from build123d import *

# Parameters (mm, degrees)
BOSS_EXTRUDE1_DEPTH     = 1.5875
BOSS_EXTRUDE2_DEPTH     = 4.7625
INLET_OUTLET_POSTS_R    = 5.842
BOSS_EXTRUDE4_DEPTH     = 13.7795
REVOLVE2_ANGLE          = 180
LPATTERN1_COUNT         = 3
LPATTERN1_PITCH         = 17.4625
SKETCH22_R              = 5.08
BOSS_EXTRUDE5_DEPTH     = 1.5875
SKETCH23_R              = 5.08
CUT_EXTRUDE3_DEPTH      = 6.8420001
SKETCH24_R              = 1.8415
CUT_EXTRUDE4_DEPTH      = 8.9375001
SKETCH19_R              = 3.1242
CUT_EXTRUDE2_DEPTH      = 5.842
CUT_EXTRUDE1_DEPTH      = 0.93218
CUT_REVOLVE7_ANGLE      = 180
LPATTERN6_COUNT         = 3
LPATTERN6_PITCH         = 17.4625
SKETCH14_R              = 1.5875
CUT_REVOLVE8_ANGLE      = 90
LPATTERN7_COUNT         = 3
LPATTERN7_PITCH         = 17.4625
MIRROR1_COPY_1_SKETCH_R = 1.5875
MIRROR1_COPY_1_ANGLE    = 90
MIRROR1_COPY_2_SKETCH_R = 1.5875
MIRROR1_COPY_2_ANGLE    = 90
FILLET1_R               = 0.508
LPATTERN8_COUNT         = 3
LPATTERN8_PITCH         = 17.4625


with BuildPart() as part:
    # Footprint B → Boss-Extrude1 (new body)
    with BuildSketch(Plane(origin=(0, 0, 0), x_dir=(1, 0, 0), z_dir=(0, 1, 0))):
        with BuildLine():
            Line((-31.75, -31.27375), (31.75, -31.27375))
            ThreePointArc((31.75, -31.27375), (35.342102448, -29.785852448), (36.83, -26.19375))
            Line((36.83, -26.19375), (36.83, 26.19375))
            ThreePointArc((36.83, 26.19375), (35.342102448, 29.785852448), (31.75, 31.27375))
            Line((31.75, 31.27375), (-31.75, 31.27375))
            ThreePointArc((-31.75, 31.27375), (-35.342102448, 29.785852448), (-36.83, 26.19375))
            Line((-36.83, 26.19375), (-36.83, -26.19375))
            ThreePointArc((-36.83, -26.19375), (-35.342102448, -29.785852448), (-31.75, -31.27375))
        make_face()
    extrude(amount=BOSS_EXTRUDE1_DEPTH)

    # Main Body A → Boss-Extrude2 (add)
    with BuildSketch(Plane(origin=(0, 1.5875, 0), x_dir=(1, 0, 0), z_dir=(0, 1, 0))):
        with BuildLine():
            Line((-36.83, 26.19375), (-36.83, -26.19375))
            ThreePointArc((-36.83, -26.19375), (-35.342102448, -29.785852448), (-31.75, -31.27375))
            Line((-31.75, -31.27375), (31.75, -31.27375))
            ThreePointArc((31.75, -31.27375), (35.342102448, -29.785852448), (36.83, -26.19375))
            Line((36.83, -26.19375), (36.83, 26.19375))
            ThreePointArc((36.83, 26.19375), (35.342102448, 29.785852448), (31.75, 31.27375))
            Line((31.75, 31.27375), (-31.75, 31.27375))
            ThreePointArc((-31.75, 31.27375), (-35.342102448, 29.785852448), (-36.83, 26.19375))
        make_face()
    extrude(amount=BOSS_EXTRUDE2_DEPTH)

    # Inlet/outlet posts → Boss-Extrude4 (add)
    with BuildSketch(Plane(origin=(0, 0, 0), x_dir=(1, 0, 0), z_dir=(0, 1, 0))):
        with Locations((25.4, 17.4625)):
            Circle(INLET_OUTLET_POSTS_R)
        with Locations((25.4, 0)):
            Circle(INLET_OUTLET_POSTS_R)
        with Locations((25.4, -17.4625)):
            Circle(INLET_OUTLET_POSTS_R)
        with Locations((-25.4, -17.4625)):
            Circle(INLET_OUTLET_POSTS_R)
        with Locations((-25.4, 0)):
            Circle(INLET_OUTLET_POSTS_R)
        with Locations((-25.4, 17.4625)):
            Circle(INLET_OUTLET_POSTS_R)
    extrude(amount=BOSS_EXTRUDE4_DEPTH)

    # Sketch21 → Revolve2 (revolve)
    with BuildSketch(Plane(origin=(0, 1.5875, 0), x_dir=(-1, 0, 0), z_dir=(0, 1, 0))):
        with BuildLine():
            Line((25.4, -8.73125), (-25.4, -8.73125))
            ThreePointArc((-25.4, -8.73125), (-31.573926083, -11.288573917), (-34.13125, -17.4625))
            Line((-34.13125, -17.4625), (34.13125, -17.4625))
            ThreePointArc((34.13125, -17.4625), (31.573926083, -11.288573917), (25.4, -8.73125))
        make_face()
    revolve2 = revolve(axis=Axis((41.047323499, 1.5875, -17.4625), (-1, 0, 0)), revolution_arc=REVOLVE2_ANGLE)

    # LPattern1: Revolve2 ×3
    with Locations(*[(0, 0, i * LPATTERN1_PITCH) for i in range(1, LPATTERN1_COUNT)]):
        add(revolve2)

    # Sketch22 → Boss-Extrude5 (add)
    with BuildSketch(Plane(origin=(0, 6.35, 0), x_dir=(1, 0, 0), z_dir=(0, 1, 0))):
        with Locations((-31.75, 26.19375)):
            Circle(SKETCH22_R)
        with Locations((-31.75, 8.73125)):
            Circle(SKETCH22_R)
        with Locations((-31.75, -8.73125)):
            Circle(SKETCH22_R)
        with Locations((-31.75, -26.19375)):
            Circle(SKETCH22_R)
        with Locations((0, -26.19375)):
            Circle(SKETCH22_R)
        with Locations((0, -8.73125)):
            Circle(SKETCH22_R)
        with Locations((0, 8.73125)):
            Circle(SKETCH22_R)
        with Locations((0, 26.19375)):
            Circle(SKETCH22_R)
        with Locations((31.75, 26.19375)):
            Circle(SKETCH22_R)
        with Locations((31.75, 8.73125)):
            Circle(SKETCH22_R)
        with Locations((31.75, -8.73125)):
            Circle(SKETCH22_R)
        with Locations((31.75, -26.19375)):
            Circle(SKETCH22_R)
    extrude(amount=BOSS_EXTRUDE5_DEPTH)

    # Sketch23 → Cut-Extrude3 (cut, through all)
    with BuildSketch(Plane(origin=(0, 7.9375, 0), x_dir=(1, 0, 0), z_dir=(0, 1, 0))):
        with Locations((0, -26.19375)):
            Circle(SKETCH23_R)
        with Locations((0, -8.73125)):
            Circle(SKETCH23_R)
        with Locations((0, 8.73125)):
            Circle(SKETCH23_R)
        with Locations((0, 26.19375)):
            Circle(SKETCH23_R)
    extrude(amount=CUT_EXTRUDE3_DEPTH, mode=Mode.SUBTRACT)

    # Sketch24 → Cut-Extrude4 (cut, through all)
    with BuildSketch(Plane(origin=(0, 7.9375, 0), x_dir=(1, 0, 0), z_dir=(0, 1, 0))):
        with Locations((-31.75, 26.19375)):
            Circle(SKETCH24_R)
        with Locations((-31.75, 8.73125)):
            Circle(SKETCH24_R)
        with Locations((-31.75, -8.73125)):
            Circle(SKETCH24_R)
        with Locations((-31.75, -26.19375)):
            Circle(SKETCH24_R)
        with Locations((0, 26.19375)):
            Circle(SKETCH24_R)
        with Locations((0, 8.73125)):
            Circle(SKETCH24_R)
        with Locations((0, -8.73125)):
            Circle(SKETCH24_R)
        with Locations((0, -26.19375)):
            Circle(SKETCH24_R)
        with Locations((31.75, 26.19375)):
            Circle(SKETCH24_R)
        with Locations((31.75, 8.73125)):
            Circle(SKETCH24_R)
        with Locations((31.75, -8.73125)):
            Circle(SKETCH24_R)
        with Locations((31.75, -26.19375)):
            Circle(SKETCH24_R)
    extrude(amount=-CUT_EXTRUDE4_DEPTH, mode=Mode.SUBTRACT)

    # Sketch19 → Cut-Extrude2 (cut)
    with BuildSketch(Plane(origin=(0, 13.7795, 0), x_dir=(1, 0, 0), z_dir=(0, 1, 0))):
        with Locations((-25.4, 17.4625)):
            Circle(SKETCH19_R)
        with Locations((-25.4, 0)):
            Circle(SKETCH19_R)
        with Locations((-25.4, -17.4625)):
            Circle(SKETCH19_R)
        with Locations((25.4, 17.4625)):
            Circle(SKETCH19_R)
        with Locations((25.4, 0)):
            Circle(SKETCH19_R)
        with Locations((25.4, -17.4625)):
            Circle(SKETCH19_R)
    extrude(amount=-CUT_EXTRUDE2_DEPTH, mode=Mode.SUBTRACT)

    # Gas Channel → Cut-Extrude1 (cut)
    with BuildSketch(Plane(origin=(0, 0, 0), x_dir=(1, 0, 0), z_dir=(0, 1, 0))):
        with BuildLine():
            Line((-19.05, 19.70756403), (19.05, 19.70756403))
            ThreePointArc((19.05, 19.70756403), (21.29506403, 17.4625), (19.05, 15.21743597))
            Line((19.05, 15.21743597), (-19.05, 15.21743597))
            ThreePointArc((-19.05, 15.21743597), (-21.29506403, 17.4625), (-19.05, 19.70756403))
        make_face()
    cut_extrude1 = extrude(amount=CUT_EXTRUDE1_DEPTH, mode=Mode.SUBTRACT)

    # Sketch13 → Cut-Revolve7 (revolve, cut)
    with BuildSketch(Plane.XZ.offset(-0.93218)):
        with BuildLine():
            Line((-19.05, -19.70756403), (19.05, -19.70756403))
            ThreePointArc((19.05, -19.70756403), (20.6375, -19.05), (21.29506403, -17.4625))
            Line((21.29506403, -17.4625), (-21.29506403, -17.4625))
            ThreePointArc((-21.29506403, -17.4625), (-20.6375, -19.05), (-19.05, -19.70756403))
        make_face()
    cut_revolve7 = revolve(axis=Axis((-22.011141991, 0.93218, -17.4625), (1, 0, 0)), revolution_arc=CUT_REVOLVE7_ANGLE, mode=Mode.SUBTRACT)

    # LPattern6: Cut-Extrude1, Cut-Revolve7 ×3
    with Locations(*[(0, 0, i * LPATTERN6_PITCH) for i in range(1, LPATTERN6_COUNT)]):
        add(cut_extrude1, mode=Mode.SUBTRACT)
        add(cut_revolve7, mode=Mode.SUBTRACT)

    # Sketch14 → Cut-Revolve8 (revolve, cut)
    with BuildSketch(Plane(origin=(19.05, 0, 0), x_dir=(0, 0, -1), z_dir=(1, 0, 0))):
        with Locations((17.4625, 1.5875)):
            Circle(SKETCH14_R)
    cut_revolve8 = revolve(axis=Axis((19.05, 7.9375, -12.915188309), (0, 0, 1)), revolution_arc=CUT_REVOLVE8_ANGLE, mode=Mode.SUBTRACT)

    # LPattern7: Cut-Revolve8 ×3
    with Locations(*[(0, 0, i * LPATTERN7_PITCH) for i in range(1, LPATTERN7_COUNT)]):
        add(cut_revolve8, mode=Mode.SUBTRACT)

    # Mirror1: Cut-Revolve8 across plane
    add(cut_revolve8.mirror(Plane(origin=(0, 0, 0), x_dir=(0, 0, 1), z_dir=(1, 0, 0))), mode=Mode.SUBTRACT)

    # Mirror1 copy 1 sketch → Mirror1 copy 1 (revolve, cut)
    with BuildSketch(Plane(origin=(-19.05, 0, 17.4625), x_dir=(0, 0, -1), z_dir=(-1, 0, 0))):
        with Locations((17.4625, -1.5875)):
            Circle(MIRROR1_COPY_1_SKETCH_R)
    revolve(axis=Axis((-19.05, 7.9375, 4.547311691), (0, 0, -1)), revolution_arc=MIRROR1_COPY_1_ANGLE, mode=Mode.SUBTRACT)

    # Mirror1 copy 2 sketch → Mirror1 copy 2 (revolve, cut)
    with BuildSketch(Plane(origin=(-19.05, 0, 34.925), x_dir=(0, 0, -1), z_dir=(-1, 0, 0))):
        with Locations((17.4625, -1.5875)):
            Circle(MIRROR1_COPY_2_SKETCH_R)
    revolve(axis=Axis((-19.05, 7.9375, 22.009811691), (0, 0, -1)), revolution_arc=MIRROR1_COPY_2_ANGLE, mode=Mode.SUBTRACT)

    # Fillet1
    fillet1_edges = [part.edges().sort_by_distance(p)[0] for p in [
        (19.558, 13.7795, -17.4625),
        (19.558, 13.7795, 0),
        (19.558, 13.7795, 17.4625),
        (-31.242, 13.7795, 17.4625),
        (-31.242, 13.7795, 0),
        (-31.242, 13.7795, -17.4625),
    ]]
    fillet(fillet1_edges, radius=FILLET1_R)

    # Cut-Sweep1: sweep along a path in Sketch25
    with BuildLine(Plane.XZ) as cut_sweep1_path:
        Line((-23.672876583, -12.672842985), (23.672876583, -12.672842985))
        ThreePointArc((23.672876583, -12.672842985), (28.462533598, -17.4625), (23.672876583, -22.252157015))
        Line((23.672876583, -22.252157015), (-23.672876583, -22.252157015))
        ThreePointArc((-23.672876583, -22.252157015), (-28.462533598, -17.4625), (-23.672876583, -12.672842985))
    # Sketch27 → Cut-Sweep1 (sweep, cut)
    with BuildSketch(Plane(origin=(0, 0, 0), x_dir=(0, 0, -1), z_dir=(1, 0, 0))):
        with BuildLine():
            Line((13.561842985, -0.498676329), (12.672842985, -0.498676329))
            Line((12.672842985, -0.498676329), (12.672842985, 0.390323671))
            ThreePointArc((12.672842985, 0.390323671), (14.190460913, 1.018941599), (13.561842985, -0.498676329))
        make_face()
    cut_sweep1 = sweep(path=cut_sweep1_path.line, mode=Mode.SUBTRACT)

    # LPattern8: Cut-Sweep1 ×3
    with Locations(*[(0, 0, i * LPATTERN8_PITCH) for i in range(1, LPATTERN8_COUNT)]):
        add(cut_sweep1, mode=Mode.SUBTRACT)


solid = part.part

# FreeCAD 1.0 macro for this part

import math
import FreeCAD as App
import Part
import Sketcher

V = App.Vector
Q = App.Units.Quantity


def edges_at(feature, points):
    """Names of the edges that pass closest to the given points."""
    edges = feature.Shape.Edges
    near = lambda p: min(range(len(edges)), key=lambda i: edges[i].distToShape(Part.Vertex(*p))[0])
    return sorted({f"Edge{near(p) + 1}" for p in points})

doc = App.newDocument("Part")
body = doc.addObject("PartDesign::Body", "Body")

# Sketch on XZ plane
sketch1 = body.newObject("Sketcher::SketchObject", "Sketch")
sketch1.AttachmentSupport = (doc.getObject("XZ_Plane"), [""])
sketch1.MapMode = "FlatFace"
sketch1.addGeometry(Part.LineSegment(V(-32, 31, 0), V(32, 31, 0)), False)
sketch1.addGeometry(Part.ArcOfCircle(Part.Circle(V(32, 26, 0), V(0, 0, 1), 5), math.radians(0), math.radians(90)), False)
sketch1.addGeometry(Part.LineSegment(V(37, 26, 0), V(37, -26, 0)), False)
sketch1.addGeometry(Part.ArcOfCircle(Part.Circle(V(32, -26, 0), V(0, 0, 1), 5), math.radians(-90), math.radians(0)), False)
sketch1.addGeometry(Part.LineSegment(V(32, -31, 0), V(-32, -31, 0)), False)
sketch1.addGeometry(Part.ArcOfCircle(Part.Circle(V(-32, -26, 0), V(0, 0, 1), 5), math.radians(-180), math.radians(-90)), False)
sketch1.addGeometry(Part.LineSegment(V(-37, -26, 0), V(-37, 26, 0)), False)
sketch1.addGeometry(Part.ArcOfCircle(Part.Circle(V(-32, 26, 0), V(0, 0, 1), 5), math.radians(90), math.radians(180)), False)
sketch1.addConstraint(Sketcher.Constraint("Tangent", 0, 2, 1, 2))
sketch1.addConstraint(Sketcher.Constraint("Tangent", 1, 1, 2, 1))
sketch1.addConstraint(Sketcher.Constraint("Tangent", 2, 2, 3, 2))
sketch1.addConstraint(Sketcher.Constraint("Tangent", 3, 1, 4, 1))
sketch1.addConstraint(Sketcher.Constraint("Tangent", 4, 2, 5, 2))
sketch1.addConstraint(Sketcher.Constraint("Tangent", 5, 1, 6, 1))
sketch1.addConstraint(Sketcher.Constraint("Tangent", 6, 2, 7, 2))
sketch1.addConstraint(Sketcher.Constraint("Tangent", 7, 1, 0, 1))
sketch1.addConstraint(Sketcher.Constraint("Horizontal", 0))
sketch1.addConstraint(Sketcher.Constraint("Vertical", 2))
sketch1.addConstraint(Sketcher.Constraint("Horizontal", 4))
sketch1.addConstraint(Sketcher.Constraint("Vertical", 6))
sketch1.addConstraint(Sketcher.Constraint("Equal", 1, 3))
sketch1.addConstraint(Sketcher.Constraint("Equal", 3, 5))
sketch1.addConstraint(Sketcher.Constraint("Equal", 5, 7))
sketch1.addConstraint(Sketcher.Constraint("Symmetric", 1, 3, 5, 3, -1, 1))
sketch1.addConstraint(Sketcher.Constraint("Radius", 1, Q("0.2 in")))
sketch1.addConstraint(Sketcher.Constraint("DistanceX", 0, 1, 0, 2, Q("2.5 in")))
sketch1.addConstraint(Sketcher.Constraint("DistanceY", 2, 2, 2, 1, Q("2.0625 in")))
pad1 = body.newObject("PartDesign::Pad", "Pad")
pad1.Profile = sketch1
pad1.Length = Q("0.0625 in")
pad1.Reversed = True

# Sketch on XZ plane
sketch2 = body.newObject("Sketcher::SketchObject", "Sketch001")
sketch2.AttachmentSupport = (doc.getObject("XZ_Plane"), [""])
sketch2.MapMode = "FlatFace"
sketch2.AttachmentOffset = App.Placement(V(0, 0, -0.0625 * 25.4), App.Rotation())
sketch2.addGeometry(Part.LineSegment(V(-37, -26, 0), V(-37, 26, 0)), False)
sketch2.addGeometry(Part.ArcOfCircle(Part.Circle(V(-32, 26, 0), V(0, 0, 1), 5), math.radians(90), math.radians(180)), False)
sketch2.addGeometry(Part.LineSegment(V(-32, 31, 0), V(32, 31, 0)), False)
sketch2.addGeometry(Part.ArcOfCircle(Part.Circle(V(32, 26, 0), V(0, 0, 1), 5), math.radians(0), math.radians(90)), False)
sketch2.addGeometry(Part.LineSegment(V(37, 26, 0), V(37, -26, 0)), False)
sketch2.addGeometry(Part.ArcOfCircle(Part.Circle(V(32, -26, 0), V(0, 0, 1), 5), math.radians(-90), math.radians(0)), False)
sketch2.addGeometry(Part.LineSegment(V(32, -31, 0), V(-32, -31, 0)), False)
sketch2.addGeometry(Part.ArcOfCircle(Part.Circle(V(-32, -26, 0), V(0, 0, 1), 5), math.radians(-180), math.radians(-90)), False)
sketch2.addConstraint(Sketcher.Constraint("Tangent", 0, 2, 1, 2))
sketch2.addConstraint(Sketcher.Constraint("Tangent", 1, 1, 2, 1))
sketch2.addConstraint(Sketcher.Constraint("Tangent", 2, 2, 3, 2))
sketch2.addConstraint(Sketcher.Constraint("Tangent", 3, 1, 4, 1))
sketch2.addConstraint(Sketcher.Constraint("Tangent", 4, 2, 5, 2))
sketch2.addConstraint(Sketcher.Constraint("Tangent", 5, 1, 6, 1))
sketch2.addConstraint(Sketcher.Constraint("Tangent", 6, 2, 7, 2))
sketch2.addConstraint(Sketcher.Constraint("Tangent", 7, 1, 0, 1))
sketch2.addConstraint(Sketcher.Constraint("Vertical", 0))
sketch2.addConstraint(Sketcher.Constraint("Horizontal", 2))
sketch2.addConstraint(Sketcher.Constraint("Vertical", 4))
sketch2.addConstraint(Sketcher.Constraint("Horizontal", 6))
sketch2.addConstraint(Sketcher.Constraint("Equal", 1, 3))
sketch2.addConstraint(Sketcher.Constraint("Equal", 3, 5))
sketch2.addConstraint(Sketcher.Constraint("Equal", 5, 7))
sketch2.addConstraint(Sketcher.Constraint("Symmetric", 1, 3, 5, 3, -1, 1))
sketch2.addConstraint(Sketcher.Constraint("Radius", 1, Q("0.2 in")))
sketch2.addConstraint(Sketcher.Constraint("DistanceX", 2, 1, 2, 2, Q("2.5 in")))
sketch2.addConstraint(Sketcher.Constraint("DistanceY", 0, 1, 0, 2, Q("2.0625 in")))
pad2 = body.newObject("PartDesign::Pad", "Pad001")
pad2.Profile = sketch2
pad2.Length = Q("0.1875 in")
pad2.Reversed = True

# Sketch on XZ plane
sketch3 = body.newObject("Sketcher::SketchObject", "Sketch002")
sketch3.AttachmentSupport = (doc.getObject("XZ_Plane"), [""])
sketch3.MapMode = "FlatFace"
sketch3.addGeometry(Part.Circle(V(25, -17, 0), V(0, 0, 1), 6), False)
sketch3.addGeometry(Part.Circle(V(25, 0, 0), V(0, 0, 1), 6), False)
sketch3.addGeometry(Part.Circle(V(25, 17, 0), V(0, 0, 1), 6), False)
sketch3.addGeometry(Part.Circle(V(-25, 17, 0), V(0, 0, 1), 6), False)
sketch3.addGeometry(Part.Circle(V(-25, 0, 0), V(0, 0, 1), 6), False)
sketch3.addGeometry(Part.Circle(V(-25, -17, 0), V(0, 0, 1), 6), False)
sketch3.addConstraint(Sketcher.Constraint("Equal", 0, 1))
sketch3.addConstraint(Sketcher.Constraint("Equal", 1, 2))
sketch3.addConstraint(Sketcher.Constraint("Equal", 2, 3))
sketch3.addConstraint(Sketcher.Constraint("Equal", 3, 4))
sketch3.addConstraint(Sketcher.Constraint("Equal", 4, 5))
sketch3.addConstraint(Sketcher.Constraint("Symmetric", 0, 3, 3, 3, -1, 1))
sketch3.addConstraint(Sketcher.Constraint("Symmetric", 1, 3, 4, 3, -1, 1))
sketch3.addConstraint(Sketcher.Constraint("Symmetric", 2, 3, 5, 3, -1, 1))
sketch3.addConstraint(Sketcher.Constraint("Symmetric", 2, 3, 3, 3, -2))
sketch3.addConstraint(Sketcher.Constraint("PointOnObject", 1, 3, -1))
sketch3.addConstraint(Sketcher.Constraint("Vertical", 0, 3, 1, 3))
sketch3.addConstraint(Sketcher.Constraint("Diameter", 0, Q("0.46 in")))
sketch3.addConstraint(Sketcher.Constraint("DistanceX", -1, 1, 0, 3, Q("1 in")))
sketch3.addConstraint(Sketcher.Constraint("DistanceY", 0, 3, -1, 1, Q("0.6875 in")))
pad3 = body.newObject("PartDesign::Pad", "Pad002")
pad3.Profile = sketch3
pad3.Length = Q("0.5425 in")
pad3.Reversed = True

# Sketch on XZ plane
sketch4 = body.newObject("Sketcher::SketchObject", "Sketch003")
sketch4.AttachmentSupport = (doc.getObject("XZ_Plane"), [""])
sketch4.MapMode = "FlatFace"
sketch4.AttachmentOffset = App.Placement(V(0, 0, -0.0625 * 25.4), App.Rotation())
sketch4.addGeometry(Part.LineSegment(V(-25, -9, 0), V(25, -9, 0)), False)
sketch4.addGeometry(Part.ArcOfCircle(Part.Circle(V(25, -17, 0), V(0, 0, 1), 9), math.radians(0), math.radians(90)), False)
sketch4.addGeometry(Part.LineSegment(V(34, -17, 0), V(-34, -17, 0)), False)
sketch4.addGeometry(Part.ArcOfCircle(Part.Circle(V(-25, -17, 0), V(0, 0, 1), 9), math.radians(90), math.radians(180)), False)
sketch4.addGeometry(Part.LineSegment(V(34, -17, 0), V(-34, -17, 0)), True)  # axis
sketch4.addConstraint(Sketcher.Constraint("Tangent", 0, 2, 1, 2))
sketch4.addConstraint(Sketcher.Constraint("Coincident", 1, 1, 2, 1))
sketch4.addConstraint(Sketcher.Constraint("Coincident", 2, 2, 3, 2))
sketch4.addConstraint(Sketcher.Constraint("Tangent", 3, 1, 0, 1))
sketch4.addConstraint(Sketcher.Constraint("Horizontal", 0))
sketch4.addConstraint(Sketcher.Constraint("Horizontal", 2))
sketch4.addConstraint(Sketcher.Constraint("Horizontal", 4))
sketch4.addConstraint(Sketcher.Constraint("Coincident", 4, 1, 1, 1))
sketch4.addConstraint(Sketcher.Constraint("Equal", 1, 3))
sketch4.addConstraint(Sketcher.Constraint("Horizontal", 3, 3, 1, 1))
sketch4.addConstraint(Sketcher.Constraint("Equal", 2, 4))
sketch4.addConstraint(Sketcher.Constraint("DistanceX", 0, 1, 0, 2, Q("2 in")))
sketch4.addConstraint(Sketcher.Constraint("DistanceX", -1, 1, 1, 3, Q("1 in")))
sketch4.addConstraint(Sketcher.Constraint("Radius", 1, Q("0.34375 in")))
sketch4.addConstraint(Sketcher.Constraint("DistanceY", 1, 3, -1, 1, Q("0.6875 in")))
revolution = body.newObject("PartDesign::Revolution", "Revolution")
revolution.Profile = sketch4
revolution.ReferenceAxis = (sketch4, ["Axis0"])
revolution.Angle = 180
doc.recompute()

linearpattern = body.newObject("PartDesign::LinearPattern", "LinearPattern")
linearpattern.Originals = [revolution]
linearpattern.Direction = (doc.getObject("Z_Axis"), [""])
linearpattern.Mode = "offset"
linearpattern.Offset = Q("0.6875 in")
linearpattern.Occurrences = 3
body.Tip = linearpattern

# Sketch on XZ plane
sketch5 = body.newObject("Sketcher::SketchObject", "Sketch004")
sketch5.AttachmentSupport = (doc.getObject("XZ_Plane"), [""])
sketch5.MapMode = "FlatFace"
sketch5.AttachmentOffset = App.Placement(V(0, 0, -0.25 * 25.4), App.Rotation())
sketch5.addGeometry(Part.Circle(V(-32, -26, 0), V(0, 0, 1), 5), False)
sketch5.addGeometry(Part.Circle(V(-32, -9, 0), V(0, 0, 1), 5), False)
sketch5.addGeometry(Part.Circle(V(-32, 9, 0), V(0, 0, 1), 5), False)
sketch5.addGeometry(Part.Circle(V(-32, 26, 0), V(0, 0, 1), 5), False)
sketch5.addGeometry(Part.Circle(V(0, 26, 0), V(0, 0, 1), 5), False)
sketch5.addGeometry(Part.Circle(V(0, 9, 0), V(0, 0, 1), 5), False)
sketch5.addGeometry(Part.Circle(V(0, -9, 0), V(0, 0, 1), 5), False)
sketch5.addGeometry(Part.Circle(V(0, -26, 0), V(0, 0, 1), 5), False)
sketch5.addGeometry(Part.Circle(V(32, -26, 0), V(0, 0, 1), 5), False)
sketch5.addGeometry(Part.Circle(V(32, -9, 0), V(0, 0, 1), 5), False)
sketch5.addGeometry(Part.Circle(V(32, 9, 0), V(0, 0, 1), 5), False)
sketch5.addGeometry(Part.Circle(V(32, 26, 0), V(0, 0, 1), 5), False)
sketch5.addConstraint(Sketcher.Constraint("Equal", 0, 1))
sketch5.addConstraint(Sketcher.Constraint("Equal", 1, 2))
sketch5.addConstraint(Sketcher.Constraint("Equal", 2, 3))
sketch5.addConstraint(Sketcher.Constraint("Equal", 3, 4))
sketch5.addConstraint(Sketcher.Constraint("Equal", 4, 5))
sketch5.addConstraint(Sketcher.Constraint("Equal", 5, 6))
sketch5.addConstraint(Sketcher.Constraint("Equal", 6, 7))
sketch5.addConstraint(Sketcher.Constraint("Equal", 7, 8))
sketch5.addConstraint(Sketcher.Constraint("Equal", 8, 9))
sketch5.addConstraint(Sketcher.Constraint("Equal", 9, 10))
sketch5.addConstraint(Sketcher.Constraint("Equal", 10, 11))
sketch5.addConstraint(Sketcher.Constraint("Symmetric", 5, 3, 6, 3, -1, 1))
sketch5.addConstraint(Sketcher.Constraint("Symmetric", 4, 3, 7, 3, -1, 1))
sketch5.addConstraint(Sketcher.Constraint("Symmetric", 3, 3, 8, 3, -1, 1))
sketch5.addConstraint(Sketcher.Constraint("Symmetric", 2, 3, 9, 3, -1, 1))
sketch5.addConstraint(Sketcher.Constraint("Symmetric", 1, 3, 10, 3, -1, 1))
sketch5.addConstraint(Sketcher.Constraint("Symmetric", 0, 3, 11, 3, -1, 1))
sketch5.addConstraint(Sketcher.Constraint("Symmetric", 0, 3, 8, 3, -2))
sketch5.addConstraint(Sketcher.Constraint("Symmetric", 1, 3, 9, 3, -2))
sketch5.addConstraint(Sketcher.Constraint("PointOnObject", 4, 3, -2))
sketch5.addConstraint(Sketcher.Constraint("PointOnObject", 5, 3, -2))
sketch5.addConstraint(Sketcher.Constraint("Horizontal", 3, 3, 4, 3))
sketch5.addConstraint(Sketcher.Constraint("Horizontal", 2, 3, 5, 3))
sketch5.addConstraint(Sketcher.Constraint("Vertical", 0, 3, 1, 3))
sketch5.addConstraint(Sketcher.Constraint("Diameter", 0, Q("0.4 in")))
sketch5.addConstraint(Sketcher.Constraint("DistanceX", 0, 3, 8, 3, Q("2.5 in")))
sketch5.addConstraint(Sketcher.Constraint("DistanceY", 0, 3, -1, 1, Q("1.03125 in")))
sketch5.addConstraint(Sketcher.Constraint("DistanceY", 1, 3, -1, 1, Q("0.34375 in")))
pad4 = body.newObject("PartDesign::Pad", "Pad003")
pad4.Profile = sketch5
pad4.Length = Q("0.0625 in")
pad4.Reversed = True

# Sketch on XZ plane
sketch6 = body.newObject("Sketcher::SketchObject", "Sketch005")
sketch6.AttachmentSupport = (doc.getObject("XZ_Plane"), [""])
sketch6.MapMode = "FlatFace"
sketch6.AttachmentOffset = App.Placement(V(0, 0, -0.3125 * 25.4), App.Rotation())
sketch6.addGeometry(Part.Circle(V(0, 26, 0), V(0, 0, 1), 5), False)
sketch6.addGeometry(Part.Circle(V(0, 9, 0), V(0, 0, 1), 5), False)
sketch6.addGeometry(Part.Circle(V(0, -9, 0), V(0, 0, 1), 5), False)
sketch6.addGeometry(Part.Circle(V(0, -26, 0), V(0, 0, 1), 5), False)
sketch6.addConstraint(Sketcher.Constraint("Equal", 0, 1))
sketch6.addConstraint(Sketcher.Constraint("Equal", 1, 2))
sketch6.addConstraint(Sketcher.Constraint("Equal", 2, 3))
sketch6.addConstraint(Sketcher.Constraint("Symmetric", 1, 3, 2, 3, -1, 1))
sketch6.addConstraint(Sketcher.Constraint("Symmetric", 0, 3, 3, 3, -1, 1))
sketch6.addConstraint(Sketcher.Constraint("PointOnObject", 0, 3, -2))
sketch6.addConstraint(Sketcher.Constraint("PointOnObject", 1, 3, -2))
sketch6.addConstraint(Sketcher.Constraint("Diameter", 0, Q("0.4 in")))
sketch6.addConstraint(Sketcher.Constraint("DistanceY", -1, 1, 0, 3, Q("1.03125 in")))
sketch6.addConstraint(Sketcher.Constraint("DistanceY", -1, 1, 1, 3, Q("0.34375 in")))
pocket1 = body.newObject("PartDesign::Pocket", "Pocket")
pocket1.Profile = sketch6
pocket1.Type = "ThroughAll"

# Sketch on XZ plane
sketch7 = body.newObject("Sketcher::SketchObject", "Sketch006")
sketch7.AttachmentSupport = (doc.getObject("XZ_Plane"), [""])
sketch7.MapMode = "FlatFace"
sketch7.AttachmentOffset = App.Placement(V(0, 0, -0.3125 * 25.4), App.Rotation())
sketch7.addGeometry(Part.Circle(V(-31.8, -26.2, 0), V(0, 0, 1), 1.8), False)
sketch7.addGeometry(Part.Circle(V(-31.8, -8.7, 0), V(0, 0, 1), 1.8), False)
sketch7.addGeometry(Part.Circle(V(-31.8, 8.7, 0), V(0, 0, 1), 1.8), False)
sketch7.addGeometry(Part.Circle(V(-31.8, 26.2, 0), V(0, 0, 1), 1.8), False)
sketch7.addGeometry(Part.Circle(V(0, -26.2, 0), V(0, 0, 1), 1.8), False)
sketch7.addGeometry(Part.Circle(V(0, -8.7, 0), V(0, 0, 1), 1.8), False)
sketch7.addGeometry(Part.Circle(V(0, 8.7, 0), V(0, 0, 1), 1.8), False)
sketch7.addGeometry(Part.Circle(V(0, 26.2, 0), V(0, 0, 1), 1.8), False)
sketch7.addGeometry(Part.Circle(V(31.8, -26.2, 0), V(0, 0, 1), 1.8), False)
sketch7.addGeometry(Part.Circle(V(31.8, -8.7, 0), V(0, 0, 1), 1.8), False)
sketch7.addGeometry(Part.Circle(V(31.8, 8.7, 0), V(0, 0, 1), 1.8), False)
sketch7.addGeometry(Part.Circle(V(31.8, 26.2, 0), V(0, 0, 1), 1.8), False)
sketch7.addConstraint(Sketcher.Constraint("Equal", 0, 1))
sketch7.addConstraint(Sketcher.Constraint("Equal", 1, 2))
sketch7.addConstraint(Sketcher.Constraint("Equal", 2, 3))
sketch7.addConstraint(Sketcher.Constraint("Equal", 3, 4))
sketch7.addConstraint(Sketcher.Constraint("Equal", 4, 5))
sketch7.addConstraint(Sketcher.Constraint("Equal", 5, 6))
sketch7.addConstraint(Sketcher.Constraint("Equal", 6, 7))
sketch7.addConstraint(Sketcher.Constraint("Equal", 7, 8))
sketch7.addConstraint(Sketcher.Constraint("Equal", 8, 9))
sketch7.addConstraint(Sketcher.Constraint("Equal", 9, 10))
sketch7.addConstraint(Sketcher.Constraint("Equal", 10, 11))
sketch7.addConstraint(Sketcher.Constraint("Symmetric", 5, 3, 6, 3, -1, 1))
sketch7.addConstraint(Sketcher.Constraint("Symmetric", 4, 3, 7, 3, -1, 1))
sketch7.addConstraint(Sketcher.Constraint("Symmetric", 3, 3, 8, 3, -1, 1))
sketch7.addConstraint(Sketcher.Constraint("Symmetric", 2, 3, 9, 3, -1, 1))
sketch7.addConstraint(Sketcher.Constraint("Symmetric", 1, 3, 10, 3, -1, 1))
sketch7.addConstraint(Sketcher.Constraint("Symmetric", 0, 3, 11, 3, -1, 1))
sketch7.addConstraint(Sketcher.Constraint("Symmetric", 0, 3, 8, 3, -2))
sketch7.addConstraint(Sketcher.Constraint("Symmetric", 1, 3, 9, 3, -2))
sketch7.addConstraint(Sketcher.Constraint("PointOnObject", 4, 3, -2))
sketch7.addConstraint(Sketcher.Constraint("PointOnObject", 5, 3, -2))
sketch7.addConstraint(Sketcher.Constraint("Horizontal", 0, 3, 4, 3))
sketch7.addConstraint(Sketcher.Constraint("Horizontal", 1, 3, 5, 3))
sketch7.addConstraint(Sketcher.Constraint("Vertical", 0, 3, 1, 3))
sketch7.addConstraint(Sketcher.Constraint("Diameter", 0, Q("0.145 in")))
sketch7.addConstraint(Sketcher.Constraint("DistanceX", 0, 3, 8, 3, Q("2.5 in")))
sketch7.addConstraint(Sketcher.Constraint("DistanceY", 0, 3, -1, 1, Q("1.03125 in")))
sketch7.addConstraint(Sketcher.Constraint("DistanceY", 1, 3, -1, 1, Q("0.34375 in")))
pocket2 = body.newObject("PartDesign::Pocket", "Pocket001")
pocket2.Profile = sketch7
pocket2.Type = "ThroughAll"
pocket2.Reversed = True

# Sketch on XZ plane
sketch8 = body.newObject("Sketcher::SketchObject", "Sketch007")
sketch8.AttachmentSupport = (doc.getObject("XZ_Plane"), [""])
sketch8.MapMode = "FlatFace"
sketch8.AttachmentOffset = App.Placement(V(0, 0, -0.5425 * 25.4), App.Rotation())
sketch8.addGeometry(Part.Circle(V(-25.4, -17.5, 0), V(0, 0, 1), 3.1), False)
sketch8.addGeometry(Part.Circle(V(-25.4, 0, 0), V(0, 0, 1), 3.1), False)
sketch8.addGeometry(Part.Circle(V(-25.4, 17.5, 0), V(0, 0, 1), 3.1), False)
sketch8.addGeometry(Part.Circle(V(25.4, -17.5, 0), V(0, 0, 1), 3.1), False)
sketch8.addGeometry(Part.Circle(V(25.4, 0, 0), V(0, 0, 1), 3.1), False)
sketch8.addGeometry(Part.Circle(V(25.4, 17.5, 0), V(0, 0, 1), 3.1), False)
sketch8.addConstraint(Sketcher.Constraint("Equal", 0, 1))
sketch8.addConstraint(Sketcher.Constraint("Equal", 1, 2))
sketch8.addConstraint(Sketcher.Constraint("Equal", 2, 3))
sketch8.addConstraint(Sketcher.Constraint("Equal", 3, 4))
sketch8.addConstraint(Sketcher.Constraint("Equal", 4, 5))
sketch8.addConstraint(Sketcher.Constraint("Symmetric", 2, 3, 3, 3, -1, 1))
sketch8.addConstraint(Sketcher.Constraint("Symmetric", 1, 3, 4, 3, -1, 1))
sketch8.addConstraint(Sketcher.Constraint("Symmetric", 0, 3, 5, 3, -1, 1))
sketch8.addConstraint(Sketcher.Constraint("Symmetric", 0, 3, 3, 3, -2))
sketch8.addConstraint(Sketcher.Constraint("PointOnObject", 1, 3, -1))
sketch8.addConstraint(Sketcher.Constraint("Vertical", 0, 3, 1, 3))
sketch8.addConstraint(Sketcher.Constraint("Diameter", 0, Q("0.246 in")))
sketch8.addConstraint(Sketcher.Constraint("DistanceX", 0, 3, -1, 1, Q("1 in")))
sketch8.addConstraint(Sketcher.Constraint("DistanceY", 0, 3, -1, 1, Q("0.6875 in")))
pocket3 = body.newObject("PartDesign::Pocket", "Pocket002")
pocket3.Profile = sketch8
pocket3.Length = Q("0.23 in")
pocket3.Reversed = True

# Sketch on XZ plane
sketch9 = body.newObject("Sketcher::SketchObject", "Sketch008")
sketch9.AttachmentSupport = (doc.getObject("XZ_Plane"), [""])
sketch9.MapMode = "FlatFace"
sketch9.addGeometry(Part.LineSegment(V(19.1, -19.7, 0), V(-19.1, -19.7, 0)), False)
sketch9.addGeometry(Part.ArcOfCircle(Part.Circle(V(-19.1, -17.5, 0), V(0, 0, 1), 2.2), math.radians(90), math.radians(270)), False)
sketch9.addGeometry(Part.LineSegment(V(-19.1, -15.2, 0), V(19.1, -15.2, 0)), False)
sketch9.addGeometry(Part.ArcOfCircle(Part.Circle(V(19.1, -17.5, 0), V(0, 0, 1), 2.2), math.radians(-90), math.radians(90)), False)
sketch9.addConstraint(Sketcher.Constraint("Tangent", 0, 2, 1, 2))
sketch9.addConstraint(Sketcher.Constraint("Tangent", 1, 1, 2, 1))
sketch9.addConstraint(Sketcher.Constraint("Tangent", 2, 2, 3, 2))
sketch9.addConstraint(Sketcher.Constraint("Tangent", 3, 1, 0, 1))
sketch9.addConstraint(Sketcher.Constraint("Horizontal", 0))
sketch9.addConstraint(Sketcher.Constraint("Horizontal", 2))
sketch9.addConstraint(Sketcher.Constraint("DistanceX", 0, 2, 0, 1, Q("1.5 in")))
sketch9.addConstraint(Sketcher.Constraint("DistanceX", 1, 3, -1, 1, Q("0.75 in")))
sketch9.addConstraint(Sketcher.Constraint("DistanceY", 1, 3, -1, 1, Q("0.6875 in")))
sketch9.addConstraint(Sketcher.Constraint("Radius", 1, 2.245064))
pocket4 = body.newObject("PartDesign::Pocket", "Pocket003")
pocket4.Profile = sketch9
pocket4.Length = Q("0.0367 in")

# Sketch on XZ plane
sketch10 = body.newObject("Sketcher::SketchObject", "Sketch009")
sketch10.AttachmentSupport = (doc.getObject("XZ_Plane"), [""])
sketch10.MapMode = "FlatFace"
sketch10.AttachmentOffset = App.Placement(V(0, 0, -0.0367 * 25.4), App.Rotation())
sketch10.addGeometry(Part.LineSegment(V(-19.1, -19.7, 0), V(19.1, -19.7, 0)), False)
sketch10.addGeometry(Part.ArcOfCircle(Part.Circle(V(19.1, -17.5, 0), V(0, 0, 1), 2.2), math.radians(-90), math.radians(0)), False)
sketch10.addGeometry(Part.LineSegment(V(21.3, -17.5, 0), V(-21.3, -17.5, 0)), False)
sketch10.addGeometry(Part.ArcOfCircle(Part.Circle(V(-19.1, -17.5, 0), V(0, 0, 1), 2.2), math.radians(180), math.radians(270)), False)
sketch10.addGeometry(Part.LineSegment(V(-21.3, -17.5, 0), V(21.3, -17.5, 0)), True)  # axis
sketch10.addConstraint(Sketcher.Constraint("Tangent", 0, 2, 1, 1))
sketch10.addConstraint(Sketcher.Constraint("Coincident", 1, 2, 2, 1))
sketch10.addConstraint(Sketcher.Constraint("Coincident", 2, 2, 3, 1))
sketch10.addConstraint(Sketcher.Constraint("Tangent", 3, 2, 0, 1))
sketch10.addConstraint(Sketcher.Constraint("Horizontal", 0))
sketch10.addConstraint(Sketcher.Constraint("Horizontal", 2))
sketch10.addConstraint(Sketcher.Constraint("Horizontal", 4))
sketch10.addConstraint(Sketcher.Constraint("Coincident", 4, 1, 2, 2))
sketch10.addConstraint(Sketcher.Constraint("Equal", 1, 3))
sketch10.addConstraint(Sketcher.Constraint("Horizontal", 3, 3, 1, 2))
sketch10.addConstraint(Sketcher.Constraint("Equal", 2, 4))
sketch10.addConstraint(Sketcher.Constraint("DistanceX", 0, 1, 0, 2, Q("1.5 in")))
sketch10.addConstraint(Sketcher.Constraint("DistanceX", -1, 1, 1, 3, Q("0.75 in")))
sketch10.addConstraint(Sketcher.Constraint("DistanceY", 1, 3, -1, 1, Q("0.6875 in")))
sketch10.addConstraint(Sketcher.Constraint("Radius", 1, 2.245064))
groove = body.newObject("PartDesign::Groove", "Groove")
groove.Profile = sketch10
groove.ReferenceAxis = (sketch10, ["Axis0"])
groove.Angle = 180
doc.recompute()

linearpattern2 = body.newObject("PartDesign::LinearPattern", "LinearPattern001")
linearpattern2.Originals = [pocket4, groove]
linearpattern2.Direction = (doc.getObject("Z_Axis"), [""])
linearpattern2.Mode = "offset"
linearpattern2.Offset = Q("0.6875 in")
linearpattern2.Occurrences = 3
body.Tip = linearpattern2

# Sketch on YZ plane
sketch11 = body.newObject("Sketcher::SketchObject", "Sketch010")
sketch11.AttachmentSupport = (doc.getObject("YZ_Plane"), [""])
sketch11.MapMode = "FlatFace"
sketch11.AttachmentOffset = App.Placement(V(0, 0, 0.75 * 25.4), App.Rotation())
sketch11.addGeometry(Part.Circle(V(1.6, -17.5, 0), V(0, 0, 1), 1.6), False)
sketch11.addGeometry(Part.LineSegment(V(7.9, -17.5, 0), V(7.9, -7.5, 0)), True)  # axis
sketch11.addConstraint(Sketcher.Constraint("Vertical", 1))
sketch11.addConstraint(Sketcher.Constraint("Horizontal", 0, 3, 1, 1))
sketch11.addConstraint(Sketcher.Constraint("Diameter", 0, Q("0.125 in")))
sketch11.addConstraint(Sketcher.Constraint("DistanceX", 0, 3, 1, 1, Q("0.25 in")))
sketch11.addConstraint(Sketcher.Constraint("DistanceX", -1, 1, 0, 3, Q("0.0625 in")))
sketch11.addConstraint(Sketcher.Constraint("DistanceY", 0, 3, -1, 1, Q("0.6875 in")))
sketch11.addConstraint(Sketcher.Constraint("DistanceY", 1, 1, 1, 2, 10.0))
groove2 = body.newObject("PartDesign::Groove", "Groove001")
groove2.Profile = sketch11
groove2.ReferenceAxis = (sketch11, ["Axis0"])
groove2.Angle = 90
doc.recompute()

linearpattern3 = body.newObject("PartDesign::LinearPattern", "LinearPattern002")
linearpattern3.Originals = [groove2]
linearpattern3.Direction = (doc.getObject("Z_Axis"), [""])
linearpattern3.Mode = "offset"
linearpattern3.Offset = Q("0.6875 in")
linearpattern3.Occurrences = 3
body.Tip = linearpattern3
doc.recompute()

mirrored = body.newObject("PartDesign::Mirrored", "Mirrored")
mirrored.Originals = [groove2]
mirrored.MirrorPlane = (doc.getObject("YZ_Plane"), [""])
body.Tip = mirrored

# Sketch on YZ plane
sketch12 = body.newObject("Sketcher::SketchObject", "Sketch011")
sketch12.AttachmentSupport = (doc.getObject("YZ_Plane"), [""])
sketch12.MapMode = "FlatFace"
sketch12.AttachmentOffset = App.Placement(V(0, 0, -0.75 * 25.4), App.Rotation())
sketch12.addGeometry(Part.Circle(V(1.6, 0, 0), V(0, 0, 1), 1.6), False)
sketch12.addGeometry(Part.LineSegment(V(7.9, 0, 0), V(7.9, -10, 0)), True)  # axis
sketch12.addConstraint(Sketcher.Constraint("Vertical", 1))
sketch12.addConstraint(Sketcher.Constraint("PointOnObject", 0, 3, -1))
sketch12.addConstraint(Sketcher.Constraint("PointOnObject", 1, 1, -1))
sketch12.addConstraint(Sketcher.Constraint("Diameter", 0, Q("0.125 in")))
sketch12.addConstraint(Sketcher.Constraint("DistanceX", 0, 3, 1, 1, Q("0.25 in")))
sketch12.addConstraint(Sketcher.Constraint("DistanceX", -1, 1, 0, 3, Q("0.0625 in")))
sketch12.addConstraint(Sketcher.Constraint("DistanceY", 1, 2, 1, 1, 10.0))
groove3 = body.newObject("PartDesign::Groove", "Groove002")
groove3.Profile = sketch12
groove3.ReferenceAxis = (sketch12, ["Axis0"])
groove3.Angle = 90

# Sketch on YZ plane
sketch13 = body.newObject("Sketcher::SketchObject", "Sketch012")
sketch13.AttachmentSupport = (doc.getObject("YZ_Plane"), [""])
sketch13.MapMode = "FlatFace"
sketch13.AttachmentOffset = App.Placement(V(0, 0, -0.75 * 25.4), App.Rotation())
sketch13.addGeometry(Part.Circle(V(1.6, 17.5, 0), V(0, 0, 1), 1.6), False)
sketch13.addGeometry(Part.LineSegment(V(7.9, 17.5, 0), V(7.9, 7.5, 0)), True)  # axis
sketch13.addConstraint(Sketcher.Constraint("Vertical", 1))
sketch13.addConstraint(Sketcher.Constraint("Horizontal", 0, 3, 1, 1))
sketch13.addConstraint(Sketcher.Constraint("Diameter", 0, Q("0.125 in")))
sketch13.addConstraint(Sketcher.Constraint("DistanceX", 0, 3, 1, 1, Q("0.25 in")))
sketch13.addConstraint(Sketcher.Constraint("DistanceX", -1, 1, 0, 3, Q("0.0625 in")))
sketch13.addConstraint(Sketcher.Constraint("DistanceY", -1, 1, 0, 3, Q("0.6875 in")))
sketch13.addConstraint(Sketcher.Constraint("DistanceY", 1, 2, 1, 1, 10.0))
groove4 = body.newObject("PartDesign::Groove", "Groove003")
groove4.Profile = sketch13
groove4.ReferenceAxis = (sketch13, ["Axis0"])
groove4.Angle = 90
doc.recompute()

fillet = body.newObject("PartDesign::Fillet", "Fillet")
fillet.Base = (groove4, edges_at(groove4, [
    (19.558, 13.78, -17.462),
    (19.558, 13.78, 0),
    (19.558, 13.78, 17.462),
    (-31.242, 13.78, 17.462),
    (-31.242, 13.78, 0),
    (-31.242, 13.78, -17.462),
]))
fillet.Radius = Q("0.02 in")

# Sketch on YZ plane
sketch14 = body.newObject("Sketcher::SketchObject", "Sketch013")
sketch14.AttachmentSupport = (doc.getObject("YZ_Plane"), [""])
sketch14.MapMode = "FlatFace"
sketch14.addGeometry(Part.LineSegment(V(-0.5, -12.7, 0), V(-0.5, -13.6, 0)), False)
sketch14.addGeometry(Part.ArcOfCircle(Part.Circle(V(0.4, -13.6, 0), V(0, 0, 1), 0.9), math.radians(180), math.radians(450)), False)
sketch14.addGeometry(Part.LineSegment(V(0.4, -12.7, 0), V(-0.5, -12.7, 0)), False)
sketch14.addConstraint(Sketcher.Constraint("Tangent", 0, 2, 1, 1))
sketch14.addConstraint(Sketcher.Constraint("Tangent", 1, 2, 2, 1))
sketch14.addConstraint(Sketcher.Constraint("Coincident", 2, 2, 0, 1))
sketch14.addConstraint(Sketcher.Constraint("Vertical", 0))
sketch14.addConstraint(Sketcher.Constraint("Horizontal", 2))
sketch14.addConstraint(Sketcher.Constraint("Radius", 1, Q("0.035 in")))
sketch14.addConstraint(Sketcher.Constraint("DistanceX", -1, 1, 1, 3, 0.390324))
sketch14.addConstraint(Sketcher.Constraint("DistanceY", 1, 3, -1, 1, 13.561843))

# Sketch on XZ plane
sketch15 = body.newObject("Sketcher::SketchObject", "Sketch014")
sketch15.AttachmentSupport = (doc.getObject("XZ_Plane"), [""])
sketch15.MapMode = "FlatFace"
sketch15.addGeometry(Part.LineSegment(V(-23.7, -12.7, 0), V(23.7, -12.7, 0)), False)
sketch15.addGeometry(Part.ArcOfCircle(Part.Circle(V(23.7, -17.5, 0), V(0, 0, 1), 4.8), math.radians(-90), math.radians(90)), False)
sketch15.addGeometry(Part.LineSegment(V(23.7, -22.3, 0), V(-23.7, -22.3, 0)), False)
sketch15.addGeometry(Part.ArcOfCircle(Part.Circle(V(-23.7, -17.5, 0), V(0, 0, 1), 4.8), math.radians(90), math.radians(270)), False)
sketch15.addConstraint(Sketcher.Constraint("Tangent", 0, 2, 1, 2))
sketch15.addConstraint(Sketcher.Constraint("Tangent", 1, 1, 2, 1))
sketch15.addConstraint(Sketcher.Constraint("Tangent", 2, 2, 3, 2))
sketch15.addConstraint(Sketcher.Constraint("Tangent", 3, 1, 0, 1))
sketch15.addConstraint(Sketcher.Constraint("Horizontal", 0))
sketch15.addConstraint(Sketcher.Constraint("Horizontal", 2))
sketch15.addConstraint(Sketcher.Constraint("DistanceY", 1, 3, -1, 1, Q("0.6875 in")))
sketch15.addConstraint(Sketcher.Constraint("Radius", 1, 4.789657))
sketch15.addConstraint(Sketcher.Constraint("DistanceX", 0, 1, 0, 2, 47.345753))
sketch15.addConstraint(Sketcher.Constraint("DistanceX", -1, 1, 1, 3, 23.672877))
doc.recompute()

subtractivepipe = body.newObject("PartDesign::SubtractivePipe", "SubtractivePipe")
subtractivepipe.Profile = sketch14
subtractivepipe.Spine = (sketch15, ["Edge1", "Edge2", "Edge3", "Edge4"])
doc.recompute()

linearpattern4 = body.newObject("PartDesign::LinearPattern", "LinearPattern003")
linearpattern4.Originals = [subtractivepipe]
linearpattern4.Direction = (doc.getObject("Z_Axis"), [""])
linearpattern4.Mode = "offset"
linearpattern4.Offset = Q("0.6875 in")
linearpattern4.Occurrences = 3
body.Tip = linearpattern4

doc.recompute()
